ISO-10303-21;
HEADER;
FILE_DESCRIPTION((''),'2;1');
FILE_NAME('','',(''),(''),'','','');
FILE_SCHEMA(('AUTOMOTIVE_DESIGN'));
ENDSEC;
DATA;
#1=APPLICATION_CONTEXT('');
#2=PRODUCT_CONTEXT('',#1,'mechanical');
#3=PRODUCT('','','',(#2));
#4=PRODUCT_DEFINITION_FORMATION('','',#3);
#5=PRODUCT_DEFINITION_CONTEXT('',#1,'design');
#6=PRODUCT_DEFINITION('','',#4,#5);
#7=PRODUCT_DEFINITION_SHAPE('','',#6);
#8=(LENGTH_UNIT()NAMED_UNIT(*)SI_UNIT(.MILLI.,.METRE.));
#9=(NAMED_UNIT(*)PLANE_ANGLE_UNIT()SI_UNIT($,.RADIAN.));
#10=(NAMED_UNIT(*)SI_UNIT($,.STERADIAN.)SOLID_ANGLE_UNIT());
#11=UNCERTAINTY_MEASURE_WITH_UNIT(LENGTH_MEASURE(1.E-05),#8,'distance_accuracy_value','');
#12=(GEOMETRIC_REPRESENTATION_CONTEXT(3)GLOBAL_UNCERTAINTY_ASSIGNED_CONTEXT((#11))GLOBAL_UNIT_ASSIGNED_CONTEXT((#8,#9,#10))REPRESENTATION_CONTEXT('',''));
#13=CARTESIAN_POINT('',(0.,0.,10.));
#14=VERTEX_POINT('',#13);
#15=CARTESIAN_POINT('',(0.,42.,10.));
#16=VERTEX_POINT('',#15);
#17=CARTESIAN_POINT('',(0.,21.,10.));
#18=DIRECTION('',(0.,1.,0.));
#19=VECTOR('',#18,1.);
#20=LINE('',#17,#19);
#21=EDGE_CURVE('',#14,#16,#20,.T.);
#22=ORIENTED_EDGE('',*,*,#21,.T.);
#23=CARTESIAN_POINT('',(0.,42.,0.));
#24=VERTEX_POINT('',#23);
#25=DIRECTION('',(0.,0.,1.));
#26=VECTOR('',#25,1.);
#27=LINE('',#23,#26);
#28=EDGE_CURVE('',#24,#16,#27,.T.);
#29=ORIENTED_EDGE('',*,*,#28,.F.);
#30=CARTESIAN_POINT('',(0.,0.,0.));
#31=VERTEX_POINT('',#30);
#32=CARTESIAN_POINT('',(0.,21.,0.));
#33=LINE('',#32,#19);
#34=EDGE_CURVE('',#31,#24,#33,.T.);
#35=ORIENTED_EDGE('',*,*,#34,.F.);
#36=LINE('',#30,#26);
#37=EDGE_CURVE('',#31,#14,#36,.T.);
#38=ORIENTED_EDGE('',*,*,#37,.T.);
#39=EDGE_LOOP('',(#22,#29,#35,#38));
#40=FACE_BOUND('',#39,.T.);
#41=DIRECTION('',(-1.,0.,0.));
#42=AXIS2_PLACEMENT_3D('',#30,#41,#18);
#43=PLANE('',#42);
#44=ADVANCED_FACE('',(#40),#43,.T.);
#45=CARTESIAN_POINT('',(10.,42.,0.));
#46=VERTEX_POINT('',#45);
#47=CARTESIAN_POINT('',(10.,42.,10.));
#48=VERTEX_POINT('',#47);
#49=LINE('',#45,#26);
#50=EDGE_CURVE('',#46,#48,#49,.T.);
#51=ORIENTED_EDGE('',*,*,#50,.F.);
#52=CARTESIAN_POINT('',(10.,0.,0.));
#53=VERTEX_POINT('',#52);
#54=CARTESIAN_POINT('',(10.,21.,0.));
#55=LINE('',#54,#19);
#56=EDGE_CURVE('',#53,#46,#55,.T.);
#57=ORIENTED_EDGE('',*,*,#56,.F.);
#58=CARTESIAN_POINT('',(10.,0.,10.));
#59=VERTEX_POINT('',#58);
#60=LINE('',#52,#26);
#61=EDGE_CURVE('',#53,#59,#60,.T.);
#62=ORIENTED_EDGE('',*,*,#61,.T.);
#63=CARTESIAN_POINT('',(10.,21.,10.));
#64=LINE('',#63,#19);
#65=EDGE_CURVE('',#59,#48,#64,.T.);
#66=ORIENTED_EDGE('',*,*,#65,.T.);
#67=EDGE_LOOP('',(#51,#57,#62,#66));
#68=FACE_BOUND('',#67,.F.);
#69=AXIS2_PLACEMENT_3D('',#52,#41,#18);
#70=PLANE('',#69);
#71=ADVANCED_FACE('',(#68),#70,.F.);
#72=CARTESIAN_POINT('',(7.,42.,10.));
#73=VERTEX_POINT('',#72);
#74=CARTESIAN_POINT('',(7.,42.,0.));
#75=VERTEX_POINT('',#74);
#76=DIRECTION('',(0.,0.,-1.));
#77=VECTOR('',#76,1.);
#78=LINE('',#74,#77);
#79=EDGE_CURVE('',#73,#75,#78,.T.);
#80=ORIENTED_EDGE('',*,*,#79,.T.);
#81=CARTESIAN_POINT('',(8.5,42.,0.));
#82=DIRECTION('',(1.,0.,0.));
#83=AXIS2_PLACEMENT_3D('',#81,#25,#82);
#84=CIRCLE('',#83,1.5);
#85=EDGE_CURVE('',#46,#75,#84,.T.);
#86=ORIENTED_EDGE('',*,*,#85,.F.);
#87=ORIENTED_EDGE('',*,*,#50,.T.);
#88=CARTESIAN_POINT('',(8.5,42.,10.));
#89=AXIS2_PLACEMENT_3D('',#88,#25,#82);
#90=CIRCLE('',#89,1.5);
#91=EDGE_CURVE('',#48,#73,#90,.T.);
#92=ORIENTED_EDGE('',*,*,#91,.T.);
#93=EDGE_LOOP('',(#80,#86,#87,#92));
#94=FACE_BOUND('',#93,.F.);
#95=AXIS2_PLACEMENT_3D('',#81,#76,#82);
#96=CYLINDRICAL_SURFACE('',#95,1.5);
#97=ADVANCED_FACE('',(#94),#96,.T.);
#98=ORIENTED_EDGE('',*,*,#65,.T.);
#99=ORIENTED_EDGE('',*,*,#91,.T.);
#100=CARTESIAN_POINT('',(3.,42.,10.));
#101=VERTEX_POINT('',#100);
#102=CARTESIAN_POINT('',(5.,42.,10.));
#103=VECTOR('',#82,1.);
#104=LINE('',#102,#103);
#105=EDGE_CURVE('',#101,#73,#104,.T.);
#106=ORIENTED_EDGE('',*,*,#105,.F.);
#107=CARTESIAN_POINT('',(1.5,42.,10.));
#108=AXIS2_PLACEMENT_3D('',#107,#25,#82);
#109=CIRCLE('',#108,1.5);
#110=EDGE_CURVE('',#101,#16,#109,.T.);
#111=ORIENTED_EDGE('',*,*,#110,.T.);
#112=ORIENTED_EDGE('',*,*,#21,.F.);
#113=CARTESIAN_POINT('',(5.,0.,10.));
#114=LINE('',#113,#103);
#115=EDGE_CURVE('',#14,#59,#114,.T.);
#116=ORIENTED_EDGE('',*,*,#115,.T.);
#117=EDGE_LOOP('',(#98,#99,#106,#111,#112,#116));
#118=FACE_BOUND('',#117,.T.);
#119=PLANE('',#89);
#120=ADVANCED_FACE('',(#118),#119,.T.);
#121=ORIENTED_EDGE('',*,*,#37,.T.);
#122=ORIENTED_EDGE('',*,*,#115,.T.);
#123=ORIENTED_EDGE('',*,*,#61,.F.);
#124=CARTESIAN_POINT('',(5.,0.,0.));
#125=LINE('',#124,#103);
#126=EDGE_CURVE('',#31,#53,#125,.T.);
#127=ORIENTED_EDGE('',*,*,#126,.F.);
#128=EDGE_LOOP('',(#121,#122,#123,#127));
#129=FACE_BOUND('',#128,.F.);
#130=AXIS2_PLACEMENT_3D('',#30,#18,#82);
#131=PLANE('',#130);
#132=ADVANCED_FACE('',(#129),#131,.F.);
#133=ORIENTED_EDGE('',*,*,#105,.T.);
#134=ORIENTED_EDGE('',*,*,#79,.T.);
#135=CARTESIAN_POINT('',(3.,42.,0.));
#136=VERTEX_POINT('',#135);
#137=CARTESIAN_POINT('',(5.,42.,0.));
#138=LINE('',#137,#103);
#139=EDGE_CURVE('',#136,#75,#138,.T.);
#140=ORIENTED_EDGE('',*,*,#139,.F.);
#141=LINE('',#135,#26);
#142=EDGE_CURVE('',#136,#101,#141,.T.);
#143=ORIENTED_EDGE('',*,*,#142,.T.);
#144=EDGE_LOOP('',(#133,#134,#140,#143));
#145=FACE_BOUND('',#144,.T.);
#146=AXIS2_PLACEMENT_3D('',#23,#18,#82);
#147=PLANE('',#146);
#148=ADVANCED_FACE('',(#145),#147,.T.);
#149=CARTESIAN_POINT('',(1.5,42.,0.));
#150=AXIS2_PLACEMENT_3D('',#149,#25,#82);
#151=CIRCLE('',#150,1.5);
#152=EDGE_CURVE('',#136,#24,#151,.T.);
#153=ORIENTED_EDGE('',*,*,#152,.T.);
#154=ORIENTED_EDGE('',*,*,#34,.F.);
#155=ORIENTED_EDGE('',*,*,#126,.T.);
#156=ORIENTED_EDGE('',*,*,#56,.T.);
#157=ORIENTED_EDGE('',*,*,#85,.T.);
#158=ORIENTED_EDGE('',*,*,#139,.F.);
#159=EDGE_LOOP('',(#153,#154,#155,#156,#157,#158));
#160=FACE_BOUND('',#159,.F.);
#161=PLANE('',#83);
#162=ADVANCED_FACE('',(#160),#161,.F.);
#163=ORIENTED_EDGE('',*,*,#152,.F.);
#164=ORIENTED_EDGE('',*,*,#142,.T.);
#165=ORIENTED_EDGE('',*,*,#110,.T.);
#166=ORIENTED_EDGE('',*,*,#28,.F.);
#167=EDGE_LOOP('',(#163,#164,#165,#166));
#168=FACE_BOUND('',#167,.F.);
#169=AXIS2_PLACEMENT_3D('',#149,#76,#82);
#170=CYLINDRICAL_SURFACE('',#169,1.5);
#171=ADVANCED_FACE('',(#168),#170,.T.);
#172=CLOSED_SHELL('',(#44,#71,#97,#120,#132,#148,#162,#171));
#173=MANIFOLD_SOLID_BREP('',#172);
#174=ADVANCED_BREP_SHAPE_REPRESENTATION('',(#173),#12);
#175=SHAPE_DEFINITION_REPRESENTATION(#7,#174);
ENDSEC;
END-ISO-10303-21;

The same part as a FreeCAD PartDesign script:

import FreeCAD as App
import Part
import Sketcher

V = App.Vector
Q = App.Units.Quantity


def add_polygon(sketch, points):
    """Adds a closed chain of lines whose ends are joined by coincident constraints."""
    first, n = sketch.GeometryCount, len(points)
    for a, b in zip(points, points[1:] + points[:1]):
        sketch.addGeometry(Part.LineSegment(App.Vector(*a, 0), App.Vector(*b, 0)), False)
    for i in range(n):
        sketch.addConstraint(Sketcher.Constraint("Coincident", first + i, 2, first + (i + 1) % n, 1))

doc = App.newDocument("Part")
params = doc.addObject("Spreadsheet::Sheet", "Params")
for row, (alias, value) in enumerate([
    ("sketch1_diameter", "3 mm"),
    ("pad1_length", "10 mm"),
    ("sketch2_diameter", "3 mm"),
    ("pad2_length", "10 mm"),
    ("sketch3_width", "10 mm"),
    ("sketch3_height", "42 mm"),
    ("pad3_length", "10 mm"),
], start=1):
    params.set(f"A{row}", alias)
    params.set(f"B{row}", "=" + value)
    params.setAlias(f"B{row}", alias)

body = doc.addObject("PartDesign::Body", "Body")

# Sketch on XY plane
sketch1 = body.newObject("Sketcher::SketchObject", "Sketch")
sketch1.AttachmentSupport = (doc.getObject("XY_Plane"), [""])
sketch1.MapMode = "FlatFace"
sketch1.addGeometry(Part.Circle(V(1.5, 42, 0), V(0, 0, 1), 1.5), False)
sketch1.addConstraint([
    Sketcher.Constraint("Diameter", 0, Q("3 mm")),
    Sketcher.Constraint("DistanceY", -1, 1, 0, 3, Q("42 mm")),
    Sketcher.Constraint("DistanceX", -1, 1, 0, 3, Q("1.5 mm")),
])
sketch1.setExpression("Constraints[0]", "Params.sketch1_diameter")
pad1 = body.newObject("PartDesign::Pad", "Pad")
pad1.Profile = sketch1
pad1.setExpression("Length", "Params.pad1_length")
body2 = doc.addObject("PartDesign::Body", "Body001")

# Sketch on XY plane
sketch2 = body2.newObject("Sketcher::SketchObject", "Sketch001")
sketch2.AttachmentSupport = (doc.getObject("XY_Plane001"), [""])
sketch2.MapMode = "FlatFace"
sketch2.addGeometry(Part.Circle(V(8.5, 42, 0), V(0, 0, 1), 1.5), False)
sketch2.addConstraint([
    Sketcher.Constraint("Diameter", 0, Q("3 mm")),
    Sketcher.Constraint("DistanceY", -1, 1, 0, 3, Q("42 mm")),
    Sketcher.Constraint("DistanceX", -1, 1, 0, 3, Q("8.5 mm")),
])
sketch2.setExpression("Constraints[0]", "Params.sketch2_diameter")
pad2 = body2.newObject("PartDesign::Pad", "Pad001")
pad2.Profile = sketch2
pad2.setExpression("Length", "Params.pad2_length")
body3 = doc.addObject("PartDesign::Body", "Body002")

# Sketch on XY plane
sketch3 = body3.newObject("Sketcher::SketchObject", "Sketch002")
sketch3.AttachmentSupport = (doc.getObject("XY_Plane002"), [""])
sketch3.MapMode = "FlatFace"
add_polygon(sketch3, [(0, 42), (0, 0), (10, 0), (10, 42)])  # lines 0-3
sketch3.addConstraint([
    Sketcher.Constraint("Vertical", 0),
    Sketcher.Constraint("Horizontal", 1),
    Sketcher.Constraint("Vertical", 2),
    Sketcher.Constraint("Horizontal", 3),
    Sketcher.Constraint("Coincident", 0, 2, -1, 1),
    Sketcher.Constraint("DistanceX", 1, 1, 1, 2, Q("10 mm")),
    Sketcher.Constraint("DistanceY", 0, 2, 0, 1, Q("42 mm")),
])
sketch3.setExpression("Constraints[9]", "Params.sketch3_width")
sketch3.setExpression("Constraints[10]", "Params.sketch3_height")
pad3 = body3.newObject("PartDesign::Pad", "Pad002")
pad3.Profile = sketch3
pad3.setExpression("Length", "Params.pad3_length")
doc.recompute()

boolean = body3.newObject("PartDesign::Boolean", "Boolean")
boolean.Type = "Fuse"
boolean.addObjects([body])
doc.recompute()

boolean2 = body3.newObject("PartDesign::Boolean", "Boolean001")
boolean2.Type = "Fuse"
boolean2.addObjects([body2])

doc.recompute()
